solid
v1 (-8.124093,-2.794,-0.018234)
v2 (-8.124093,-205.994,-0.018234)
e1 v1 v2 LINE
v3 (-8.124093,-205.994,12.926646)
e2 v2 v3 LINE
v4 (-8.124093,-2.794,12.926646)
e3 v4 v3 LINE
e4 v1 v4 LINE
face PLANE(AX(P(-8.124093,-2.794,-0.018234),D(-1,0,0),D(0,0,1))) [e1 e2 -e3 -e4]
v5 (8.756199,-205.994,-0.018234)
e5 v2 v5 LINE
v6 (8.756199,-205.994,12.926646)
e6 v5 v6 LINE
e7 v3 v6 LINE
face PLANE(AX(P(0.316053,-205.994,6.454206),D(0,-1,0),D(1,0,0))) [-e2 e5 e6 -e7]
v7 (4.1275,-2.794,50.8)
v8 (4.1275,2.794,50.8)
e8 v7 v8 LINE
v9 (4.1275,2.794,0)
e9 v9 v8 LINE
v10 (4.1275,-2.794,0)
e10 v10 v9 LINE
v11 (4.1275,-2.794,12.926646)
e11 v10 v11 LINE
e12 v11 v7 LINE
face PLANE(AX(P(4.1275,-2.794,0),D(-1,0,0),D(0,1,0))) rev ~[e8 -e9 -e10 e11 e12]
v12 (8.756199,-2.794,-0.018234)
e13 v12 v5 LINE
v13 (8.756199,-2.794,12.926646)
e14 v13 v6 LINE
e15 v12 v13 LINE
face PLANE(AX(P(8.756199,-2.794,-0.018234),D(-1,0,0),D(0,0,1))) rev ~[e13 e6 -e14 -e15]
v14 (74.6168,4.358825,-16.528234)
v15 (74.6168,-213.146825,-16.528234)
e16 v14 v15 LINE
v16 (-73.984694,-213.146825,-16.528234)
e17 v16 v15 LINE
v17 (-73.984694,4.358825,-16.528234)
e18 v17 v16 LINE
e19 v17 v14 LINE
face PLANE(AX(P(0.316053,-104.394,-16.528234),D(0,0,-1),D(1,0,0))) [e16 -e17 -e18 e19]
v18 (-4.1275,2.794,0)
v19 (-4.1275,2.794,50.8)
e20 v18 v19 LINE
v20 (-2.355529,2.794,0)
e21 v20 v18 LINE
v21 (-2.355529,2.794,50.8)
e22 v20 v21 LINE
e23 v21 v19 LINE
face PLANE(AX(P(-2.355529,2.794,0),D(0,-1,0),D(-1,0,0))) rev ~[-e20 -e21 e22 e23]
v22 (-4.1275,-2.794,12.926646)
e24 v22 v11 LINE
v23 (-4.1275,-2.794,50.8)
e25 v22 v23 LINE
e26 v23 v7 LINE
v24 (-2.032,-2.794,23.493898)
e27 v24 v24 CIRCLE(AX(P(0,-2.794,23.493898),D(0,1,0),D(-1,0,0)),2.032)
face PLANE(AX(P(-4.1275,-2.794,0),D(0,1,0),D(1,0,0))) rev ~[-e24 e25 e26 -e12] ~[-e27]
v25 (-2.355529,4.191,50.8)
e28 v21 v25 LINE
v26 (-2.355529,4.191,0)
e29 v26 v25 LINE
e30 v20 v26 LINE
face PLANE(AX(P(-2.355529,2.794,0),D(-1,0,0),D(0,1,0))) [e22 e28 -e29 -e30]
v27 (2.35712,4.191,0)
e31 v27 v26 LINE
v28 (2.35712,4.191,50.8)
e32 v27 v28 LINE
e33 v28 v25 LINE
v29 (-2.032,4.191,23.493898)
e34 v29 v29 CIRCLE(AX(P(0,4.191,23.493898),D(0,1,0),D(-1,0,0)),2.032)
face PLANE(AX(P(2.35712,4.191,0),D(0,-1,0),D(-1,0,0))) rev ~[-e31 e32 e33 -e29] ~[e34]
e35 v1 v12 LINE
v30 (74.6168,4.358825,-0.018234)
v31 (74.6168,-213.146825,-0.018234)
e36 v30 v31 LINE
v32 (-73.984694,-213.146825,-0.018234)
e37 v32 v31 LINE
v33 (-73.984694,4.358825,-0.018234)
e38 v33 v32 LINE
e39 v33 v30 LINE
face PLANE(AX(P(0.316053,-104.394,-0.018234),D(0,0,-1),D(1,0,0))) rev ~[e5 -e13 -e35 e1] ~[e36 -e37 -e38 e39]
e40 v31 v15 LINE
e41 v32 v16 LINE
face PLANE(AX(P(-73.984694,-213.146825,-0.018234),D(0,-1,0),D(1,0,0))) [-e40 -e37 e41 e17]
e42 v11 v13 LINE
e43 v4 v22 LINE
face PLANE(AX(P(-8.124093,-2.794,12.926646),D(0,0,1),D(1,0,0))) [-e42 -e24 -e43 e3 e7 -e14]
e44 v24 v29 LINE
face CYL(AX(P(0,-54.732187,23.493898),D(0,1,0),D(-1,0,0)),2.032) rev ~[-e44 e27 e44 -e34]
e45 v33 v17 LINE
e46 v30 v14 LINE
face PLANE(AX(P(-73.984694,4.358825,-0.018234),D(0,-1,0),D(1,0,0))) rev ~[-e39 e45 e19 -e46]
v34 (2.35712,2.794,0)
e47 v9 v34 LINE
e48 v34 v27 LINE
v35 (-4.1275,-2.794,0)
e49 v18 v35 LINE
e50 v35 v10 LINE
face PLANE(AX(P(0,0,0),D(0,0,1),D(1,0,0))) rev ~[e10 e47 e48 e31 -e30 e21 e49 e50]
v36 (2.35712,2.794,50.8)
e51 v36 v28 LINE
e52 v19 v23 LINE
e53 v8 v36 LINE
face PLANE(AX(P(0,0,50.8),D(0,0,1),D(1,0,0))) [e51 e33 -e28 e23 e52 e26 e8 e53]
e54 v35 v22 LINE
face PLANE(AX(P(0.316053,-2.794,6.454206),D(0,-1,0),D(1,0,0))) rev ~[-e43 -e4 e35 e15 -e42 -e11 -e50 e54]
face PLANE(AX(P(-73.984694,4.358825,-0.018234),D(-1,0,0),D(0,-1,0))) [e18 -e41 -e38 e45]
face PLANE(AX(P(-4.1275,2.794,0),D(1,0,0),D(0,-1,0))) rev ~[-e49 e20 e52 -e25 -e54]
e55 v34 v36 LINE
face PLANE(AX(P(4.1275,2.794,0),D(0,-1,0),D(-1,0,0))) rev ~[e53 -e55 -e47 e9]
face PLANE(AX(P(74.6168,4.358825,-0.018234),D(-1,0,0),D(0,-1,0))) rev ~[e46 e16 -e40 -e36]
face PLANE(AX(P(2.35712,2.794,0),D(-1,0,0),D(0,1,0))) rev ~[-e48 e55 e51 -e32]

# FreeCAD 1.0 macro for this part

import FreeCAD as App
import Part
import Sketcher
from FreeCAD import Vector
Q = App.Units.Quantity

doc = App.newDocument("Part")
params = doc.addObject("Spreadsheet::Sheet", "Params")
for row, (alias, value) in enumerate([
    ("sketch1_height", "0.22 in"),
    ("sketch1_width", "0.325 in"),
    ("sketch1_height2", "0.055 in"),
    ("pad1_length", "2 in"),
    ("sketch2_diameter", "0.16 in"),
    ("hole_diameter", "0.16 in"),
    ("pad2_length", "8 in"),
    ("pad3_length", "0.65 in"),
], start=1):
    params.set(f"A{row}", alias)
    params.set(f"B{row}", "=" + value)
    params.setAlias(f"B{row}", alias)

body = doc.addObject("PartDesign::Body", "Body")

sketch1 = body.newObject("Sketcher::SketchObject", "Sketch")
sketch1.AttachmentSupport = (doc.getObject("XY_Plane"), [""])
sketch1.MapMode = "FlatFace"
sketch1.addGeometry(Part.LineSegment(Vector(-4.1275, 2.794, 0), Vector(-4.1275, -2.794, 0)), False)
sketch1.addGeometry(Part.LineSegment(Vector(-4.1275, -2.794, 0), Vector(4.1275, -2.794, 0)), False)
sketch1.addGeometry(Part.LineSegment(Vector(4.1275, -2.794, 0), Vector(4.1275, 2.794, 0)), False)
sketch1.addGeometry(Part.LineSegment(Vector(4.1275, 2.794, 0), Vector(2.35712, 2.794, 0)), False)
sketch1.addGeometry(Part.LineSegment(Vector(2.35712, 2.794, 0), Vector(2.35712, 4.191, 0)), False)
sketch1.addGeometry(Part.LineSegment(Vector(2.35712, 4.191, 0), Vector(-2.355529, 4.191, 0)), False)
sketch1.addGeometry(Part.LineSegment(Vector(-2.355529, 4.191, 0), Vector(-2.355529, 2.794, 0)), False)
sketch1.addGeometry(Part.LineSegment(Vector(-2.355529, 2.794, 0), Vector(-4.1275, 2.794, 0)), False)
sketch1.addConstraint(Sketcher.Constraint("Coincident", 0, 2, 1, 1))
sketch1.addConstraint(Sketcher.Constraint("Coincident", 1, 2, 2, 1))
sketch1.addConstraint(Sketcher.Constraint("Coincident", 2, 2, 3, 1))
sketch1.addConstraint(Sketcher.Constraint("Coincident", 3, 2, 4, 1))
sketch1.addConstraint(Sketcher.Constraint("Coincident", 4, 2, 5, 1))
sketch1.addConstraint(Sketcher.Constraint("Coincident", 5, 2, 6, 1))
sketch1.addConstraint(Sketcher.Constraint("Coincident", 6, 2, 7, 1))
sketch1.addConstraint(Sketcher.Constraint("Coincident", 7, 2, 0, 1))
sketch1.addConstraint(Sketcher.Constraint("Vertical", 0))
sketch1.addConstraint(Sketcher.Constraint("Horizontal", 1))
sketch1.addConstraint(Sketcher.Constraint("Vertical", 2))
sketch1.addConstraint(Sketcher.Constraint("Horizontal", 3))
sketch1.addConstraint(Sketcher.Constraint("Vertical", 4))
sketch1.addConstraint(Sketcher.Constraint("Horizontal", 5))
sketch1.addConstraint(Sketcher.Constraint("Vertical", 6))
sketch1.addConstraint(Sketcher.Constraint("Horizontal", 7))
sketch1.addConstraint(Sketcher.Constraint("Symmetric", 0, 2, 2, 2, -1, 1))
sketch1.addConstraint(Sketcher.Constraint("Horizontal", 3, 2, 6, 2))
sketch1.addConstraint(Sketcher.Constraint("DistanceY", 0, 2, 0, 1, Q("0.22 in")))
sketch1.addConstraint(Sketcher.Constraint("DistanceX", 1, 1, 1, 2, Q("0.325 in")))
sketch1.addConstraint(Sketcher.Constraint("DistanceY", 4, 1, 4, 2, Q("0.055 in")))
sketch1.addConstraint(Sketcher.Constraint("DistanceX", 3, 2, 3, 1, Q("0.0697 in")))
sketch1.addConstraint(Sketcher.Constraint("DistanceX", 5, 2, 5, 1, 4.712649))
sketch1.setExpression("Constraints[18]", "Params.sketch1_height")
sketch1.setExpression("Constraints[19]", "Params.sketch1_width")
sketch1.setExpression("Constraints[20]", "Params.sketch1_height2")
pad1 = body.newObject("PartDesign::Pad", "Pad")
pad1.Profile = sketch1
pad1.setExpression("Length", "Params.pad1_length")

sketch2 = body.newObject("Sketcher::SketchObject", "Sketch001")
sketch2.AttachmentSupport = (doc.getObject("XZ_Plane"), [""])
sketch2.MapMode = "FlatFace"
sketch2.AttachmentOffset = App.Placement(Vector(0, 0, 0.11 * 25.4), App.Rotation())
sketch2.addGeometry(Part.Circle(Vector(0, 23.493898, 0), Vector(0, 0, 1), 2.032), False)
sketch2.addConstraint(Sketcher.Constraint("PointOnObject", 0, 3, -2))
sketch2.addConstraint(Sketcher.Constraint("Diameter", 0, Q("0.16 in")))
sketch2.addConstraint(Sketcher.Constraint("DistanceY", -1, 1, 0, 3, 23.493898))
sketch2.setExpression("Constraints[1]", "Params.sketch2_diameter")
doc.recompute()
hole = body.newObject("PartDesign::Hole", "Hole")
hole.Profile = sketch2
hole.ThreadType = "None"
hole.setExpression("Diameter", "Params.hole_diameter")
hole.DepthType = "ThroughAll"

sketch3 = body.newObject("Sketcher::SketchObject", "Sketch002")
sketch3.AttachmentSupport = (doc.getObject("XZ_Plane"), [""])
sketch3.MapMode = "FlatFace"
sketch3.AttachmentOffset = App.Placement(Vector(0, 0, 0.11 * 25.4), App.Rotation())
sketch3.addGeometry(Part.LineSegment(Vector(-8.124093, 12.926646, 0), Vector(-8.124093, -0.018234, 0)), False)
sketch3.addGeometry(Part.LineSegment(Vector(-8.124093, -0.018234, 0), Vector(8.756199, -0.018234, 0)), False)
sketch3.addGeometry(Part.LineSegment(Vector(8.756199, -0.018234, 0), Vector(8.756199, 12.926646, 0)), False)
sketch3.addGeometry(Part.LineSegment(Vector(8.756199, 12.926646, 0), Vector(-8.124093, 12.926646, 0)), False)
sketch3.addConstraint(Sketcher.Constraint("Coincident", 0, 2, 1, 1))
sketch3.addConstraint(Sketcher.Constraint("Coincident", 1, 2, 2, 1))
sketch3.addConstraint(Sketcher.Constraint("Coincident", 2, 2, 3, 1))
sketch3.addConstraint(Sketcher.Constraint("Coincident", 3, 2, 0, 1))
sketch3.addConstraint(Sketcher.Constraint("Vertical", 0))
sketch3.addConstraint(Sketcher.Constraint("Horizontal", 1))
sketch3.addConstraint(Sketcher.Constraint("Vertical", 2))
sketch3.addConstraint(Sketcher.Constraint("Horizontal", 3))
sketch3.addConstraint(Sketcher.Constraint("DistanceY", 0, 2, 0, 1, 12.94488))
sketch3.addConstraint(Sketcher.Constraint("DistanceX", -1, 1, 1, 2, 8.756199))
sketch3.addConstraint(Sketcher.Constraint("DistanceX", 1, 1, 1, 2, 16.880292))
sketch3.addConstraint(Sketcher.Constraint("DistanceY", 0, 2, -1, 1, 0.018234))
pad2 = body.newObject("PartDesign::Pad", "Pad001")
pad2.Profile = sketch3
pad2.setExpression("Length", "Params.pad2_length")

sketch4 = body.newObject("Sketcher::SketchObject", "Sketch003")
sketch4.AttachmentSupport = (doc.getObject("XY_Plane"), [""])
sketch4.MapMode = "FlatFace"
sketch4.AttachmentOffset = App.Placement(Vector(0, 0, -0.018234), App.Rotation())
sketch4.addGeometry(Part.LineSegment(Vector(-73.984694, -213.146825, 0), Vector(-73.984694, 4.358825, 0)), False)
sketch4.addGeometry(Part.LineSegment(Vector(-73.984694, 4.358825, 0), Vector(74.6168, 4.358825, 0)), False)
sketch4.addGeometry(Part.LineSegment(Vector(74.6168, 4.358825, 0), Vector(74.6168, -213.146825, 0)), False)
sketch4.addGeometry(Part.LineSegment(Vector(74.6168, -213.146825, 0), Vector(-73.984694, -213.146825, 0)), False)
sketch4.addConstraint(Sketcher.Constraint("Coincident", 0, 2, 1, 1))
sketch4.addConstraint(Sketcher.Constraint("Coincident", 1, 2, 2, 1))
sketch4.addConstraint(Sketcher.Constraint("Coincident", 2, 2, 3, 1))
sketch4.addConstraint(Sketcher.Constraint("Coincident", 3, 2, 0, 1))
sketch4.addConstraint(Sketcher.Constraint("Vertical", 0))
sketch4.addConstraint(Sketcher.Constraint("Horizontal", 1))
sketch4.addConstraint(Sketcher.Constraint("Vertical", 2))
sketch4.addConstraint(Sketcher.Constraint("Horizontal", 3))
sketch4.addConstraint(Sketcher.Constraint("DistanceY", 0, 1, 0, 2, 217.50565))
sketch4.addConstraint(Sketcher.Constraint("DistanceX", -1, 1, 1, 2, 74.6168))
sketch4.addConstraint(Sketcher.Constraint("DistanceX", 1, 1, 1, 2, 148.601494))
sketch4.addConstraint(Sketcher.Constraint("DistanceY", -1, 1, 0, 2, 4.358825))
pad3 = body.newObject("PartDesign::Pad", "Pad002")
pad3.Profile = sketch4
pad3.setExpression("Length", "Params.pad3_length")
pad3.Reversed = True

doc.recompute()
